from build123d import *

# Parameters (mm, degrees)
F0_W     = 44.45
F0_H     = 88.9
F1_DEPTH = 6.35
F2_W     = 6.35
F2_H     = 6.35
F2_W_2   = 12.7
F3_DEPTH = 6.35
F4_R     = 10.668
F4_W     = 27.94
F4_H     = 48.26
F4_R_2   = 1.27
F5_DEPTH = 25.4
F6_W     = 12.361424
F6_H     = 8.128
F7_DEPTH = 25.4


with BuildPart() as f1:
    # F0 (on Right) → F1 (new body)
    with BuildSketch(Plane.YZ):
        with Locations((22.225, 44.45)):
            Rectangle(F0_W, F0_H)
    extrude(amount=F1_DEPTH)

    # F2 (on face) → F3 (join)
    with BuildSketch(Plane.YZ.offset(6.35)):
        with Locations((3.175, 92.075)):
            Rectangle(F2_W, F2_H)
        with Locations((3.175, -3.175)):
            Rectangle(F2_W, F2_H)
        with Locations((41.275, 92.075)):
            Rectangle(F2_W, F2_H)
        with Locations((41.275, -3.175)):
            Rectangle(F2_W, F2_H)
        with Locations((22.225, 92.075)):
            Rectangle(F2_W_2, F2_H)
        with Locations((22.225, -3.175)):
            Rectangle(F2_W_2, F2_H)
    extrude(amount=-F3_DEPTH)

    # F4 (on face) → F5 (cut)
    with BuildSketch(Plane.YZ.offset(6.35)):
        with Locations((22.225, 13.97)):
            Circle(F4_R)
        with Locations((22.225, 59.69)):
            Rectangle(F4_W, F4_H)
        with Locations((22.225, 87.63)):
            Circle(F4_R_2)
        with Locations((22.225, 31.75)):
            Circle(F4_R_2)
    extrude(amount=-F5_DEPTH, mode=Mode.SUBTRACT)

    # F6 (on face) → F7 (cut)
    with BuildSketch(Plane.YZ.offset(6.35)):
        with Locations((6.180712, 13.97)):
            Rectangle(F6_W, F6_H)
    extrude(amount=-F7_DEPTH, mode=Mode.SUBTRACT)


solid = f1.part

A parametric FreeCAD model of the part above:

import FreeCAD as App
import Part
import Sketcher
from FreeCAD import Vector
Q = App.Units.Quantity


def add_polygon(sketch, points):
    """Adds a closed chain of lines whose ends are joined by coincident constraints."""
    first, n = sketch.GeometryCount, len(points)
    for a, b in zip(points, points[1:] + points[:1]):
        sketch.addGeometry(Part.LineSegment(App.Vector(*a, 0), App.Vector(*b, 0)), False)
    for i in range(n):
        sketch.addConstraint(Sketcher.Constraint("Coincident", first + i, 2, first + (i + 1) % n, 1))

doc = App.newDocument("Part")
params = doc.addObject("Spreadsheet::Sheet", "Params")
for row, (alias, value) in enumerate([
    ("sketch1_height", "3.5 in"),
    ("sketch1_width", "1.75 in"),
    ("pad1_length", "0.25 in"),
    ("sketch2_width", "0.5 in"),
    ("sketch2_width2", "0.25 in"),
    ("pad2_length", "0.25 in"),
    ("sketch3_diameter", "0.1 in"),
    ("sketch3_diameter2", "0.84 in"),
    ("sketch3_width", "1.1 in"),
    ("sketch3_height", "1.9 in"),
    ("pocket1_length", "1 in"),
    ("sketch4_height", "0.32 in"),
    ("pocket2_length", "1 in"),
], start=1):
    params.set(f"A{row}", alias)
    params.set(f"B{row}", "=" + value)
    params.setAlias(f"B{row}", alias)

body = doc.addObject("PartDesign::Body", "Body")

sketch1 = body.newObject("Sketcher::SketchObject", "Sketch")
sketch1.AttachmentSupport = (doc.getObject("YZ_Plane"), [""])
sketch1.MapMode = "FlatFace"
add_polygon(sketch1, [(0, 89), (0, 0), (44, 0), (44, 89)])
sketch1.addConstraint([
    Sketcher.Constraint("Vertical", 0),
    Sketcher.Constraint("Horizontal", 1),
    Sketcher.Constraint("Vertical", 2),
    Sketcher.Constraint("Horizontal", 3),
    Sketcher.Constraint("Coincident", 0, 2, -1, 1),
    Sketcher.Constraint("DistanceY", 0, 2, 0, 1, Q("3.5 in")),
    Sketcher.Constraint("DistanceX", 1, 1, 1, 2, Q("1.75 in")),
])
sketch1.setExpression("Constraints[9]", "Params.sketch1_height")
sketch1.setExpression("Constraints[10]", "Params.sketch1_width")
pad1 = body.newObject("PartDesign::Pad", "Pad")
pad1.Profile = sketch1
pad1.setExpression("Length", "Params.pad1_length")

sketch2 = body.newObject("Sketcher::SketchObject", "Sketch001")
sketch2.AttachmentSupport = (doc.getObject("YZ_Plane"), [""])
sketch2.MapMode = "FlatFace"
sketch2.AttachmentOffset = App.Placement(Vector(0, 0, 0.25 * 25.4), App.Rotation())
add_polygon(sketch2, [(0, 95), (0, 89), (6, 89), (6, 95)])
add_polygon(sketch2, [(0, 0), (0, -6), (6, -6), (6, 0)])
add_polygon(sketch2, [(38, 95), (38, 89), (44, 89), (44, 95)])
add_polygon(sketch2, [(38, 0), (38, -6), (44, -6), (44, 0)])
add_polygon(sketch2, [(16, 95), (16, 89), (29, 89), (29, 95)])
add_polygon(sketch2, [(16, 0), (16, -6), (29, -6), (29, 0)])
sketch2.addConstraint([
    Sketcher.Constraint("Vertical", 0),
    Sketcher.Constraint("Horizontal", 1),
    Sketcher.Constraint("Vertical", 2),
    Sketcher.Constraint("Horizontal", 3),
    Sketcher.Constraint("Vertical", 4),
    Sketcher.Constraint("Horizontal", 5),
    Sketcher.Constraint("Vertical", 6),
    Sketcher.Constraint("Horizontal", 7),
    Sketcher.Constraint("Vertical", 8),
    Sketcher.Constraint("Horizontal", 9),
    Sketcher.Constraint("Vertical", 10),
    Sketcher.Constraint("Horizontal", 11),
    Sketcher.Constraint("Vertical", 12),
    Sketcher.Constraint("Horizontal", 13),
    Sketcher.Constraint("Vertical", 14),
    Sketcher.Constraint("Horizontal", 15),
    Sketcher.Constraint("Vertical", 16),
    Sketcher.Constraint("Horizontal", 17),
    Sketcher.Constraint("Vertical", 18),
    Sketcher.Constraint("Horizontal", 19),
    Sketcher.Constraint("Vertical", 20),
    Sketcher.Constraint("Horizontal", 21),
    Sketcher.Constraint("Vertical", 22),
    Sketcher.Constraint("Horizontal", 23),
    Sketcher.Constraint("Coincident", 7, 2, -1, 1),
    Sketcher.Constraint("PointOnObject", 0, 2, -2),
    Sketcher.Constraint("PointOnObject", 14, 2, -1),
    Sketcher.Constraint("PointOnObject", 22, 2, -1),
    Sketcher.Constraint("Horizontal", 1, 2, 8, 2),
    Sketcher.Constraint("Horizontal", 3, 2, 10, 2),
    Sketcher.Constraint("Horizontal", 5, 2, 12, 2),
    Sketcher.Constraint("Horizontal", 9, 2, 16, 2),
    Sketcher.Constraint("Horizontal", 11, 2, 18, 2),
    Sketcher.Constraint("Horizontal", 13, 2, 20, 2),
    Sketcher.Constraint("Vertical", 2, 2, 5, 2),
    Sketcher.Constraint("Vertical", 11, 2, 12, 2),
    Sketcher.Constraint("Vertical", 10, 2, 13, 2),
    Sketcher.Constraint("Vertical", 19, 2, 20, 2),
    Sketcher.Constraint("Vertical", 18, 2, 21, 2),
    Sketcher.Constraint("Equal", 7, 9),
    Sketcher.Constraint("Equal", 15, 0),
    Sketcher.Constraint("Equal", 2, 4),
    Sketcher.Constraint("DistanceX", 17, 1, 17, 2, Q("0.5 in")),
    Sketcher.Constraint("DistanceY", 4, 2, 3, 2, Q("4 in")),
    Sketcher.Constraint("DistanceX", 1, 1, 1, 2, Q("0.25 in")),
    Sketcher.Constraint("DistanceX", -1, 1, 8, 2, Q("1.5 in")),
    Sketcher.Constraint("DistanceX", -1, 1, 16, 2, Q("0.625 in")),
])
sketch2.setExpression("Constraints[66]", "Params.sketch2_width")
sketch2.setExpression("Constraints[68]", "Params.sketch2_width2")
pad2 = body.newObject("PartDesign::Pad", "Pad001")
pad2.Profile = sketch2
pad2.setExpression("Length", "Params.pad2_length")
pad2.Reversed = True

sketch3 = body.newObject("Sketcher::SketchObject", "Sketch002")
sketch3.AttachmentSupport = (doc.getObject("YZ_Plane"), [""])
sketch3.MapMode = "FlatFace"
sketch3.AttachmentOffset = App.Placement(Vector(0, 0, 0.25 * 25.4), App.Rotation())
sketch3.addGeometry(Part.Circle(Vector(22.2, 14, 0), Vector(0, 0, 1), 10.7), False)
add_polygon(sketch3, [(8.3, 83.8), (8.3, 35.6), (36.2, 35.6), (36.2, 83.8)])
sketch3.addGeometry(Part.Circle(Vector(22.2, 87.6, 0), Vector(0, 0, 1), 1.3), False)
sketch3.addGeometry(Part.Circle(Vector(22.2, 31.8, 0), Vector(0, 0, 1), 1.3), False)
sketch3.addConstraint([
    Sketcher.Constraint("Vertical", 1),
    Sketcher.Constraint("Horizontal", 2),
    Sketcher.Constraint("Vertical", 3),
    Sketcher.Constraint("Horizontal", 4),
    Sketcher.Constraint("Equal", 5, 6),
    Sketcher.Constraint("Vertical", 0, 3, 5, 3),
    Sketcher.Constraint("Vertical", 5, 3, 6, 3),
    Sketcher.Constraint("Diameter", 5, Q("0.1 in")),
    Sketcher.Constraint("Diameter", 0, Q("0.84 in")),
    Sketcher.Constraint("DistanceX", 2, 1, 2, 2, Q("1.1 in")),
    Sketcher.Constraint("DistanceY", 1, 2, 1, 1, Q("1.9 in")),
    Sketcher.Constraint("DistanceY", -1, 1, 1, 2, Q("1.4 in")),
    Sketcher.Constraint("DistanceY", 0, 3, 5, 3, Q("2.9 in")),
    Sketcher.Constraint("DistanceY", 0, 3, 6, 3, Q("0.7 in")),
    Sketcher.Constraint("DistanceY", -1, 1, 0, 3, Q("0.55 in")),
    Sketcher.Constraint("DistanceX", 1, 2, 6, 3, Q("0.55 in")),
    Sketcher.Constraint("DistanceX", -1, 1, 0, 3, Q("0.875 in")),
])
sketch3.setExpression("Constraints[11]", "Params.sketch3_diameter")
sketch3.setExpression("Constraints[12]", "Params.sketch3_diameter2")
sketch3.setExpression("Constraints[13]", "Params.sketch3_width")
sketch3.setExpression("Constraints[14]", "Params.sketch3_height")
pocket1 = body.newObject("PartDesign::Pocket", "Pocket")
pocket1.Profile = sketch3
pocket1.setExpression("Length", "Params.pocket1_length")

sketch4 = body.newObject("Sketcher::SketchObject", "Sketch003")
sketch4.AttachmentSupport = (doc.getObject("YZ_Plane"), [""])
sketch4.MapMode = "FlatFace"
sketch4.AttachmentOffset = App.Placement(Vector(0, 0, 0.25 * 25.4), App.Rotation())
add_polygon(sketch4, [(0, 18), (0, 10), (12, 10), (12, 18)])
sketch4.addConstraint([
    Sketcher.Constraint("Vertical", 0),
    Sketcher.Constraint("Horizontal", 1),
    Sketcher.Constraint("Vertical", 2),
    Sketcher.Constraint("Horizontal", 3),
    Sketcher.Constraint("PointOnObject", 0, 2, -2),
    Sketcher.Constraint("DistanceY", 0, 2, 0, 1, Q("0.32 in")),
    Sketcher.Constraint("DistanceY", -1, 1, 0, 2, Q("0.39 in")),
    Sketcher.Constraint("DistanceX", 1, 1, 1, 2, 12.361424),
])
sketch4.setExpression("Constraints[9]", "Params.sketch4_height")
pocket2 = body.newObject("PartDesign::Pocket", "Pocket001")
pocket2.Profile = sketch4
pocket2.setExpression("Length", "Params.pocket2_length")

doc.recompute()
